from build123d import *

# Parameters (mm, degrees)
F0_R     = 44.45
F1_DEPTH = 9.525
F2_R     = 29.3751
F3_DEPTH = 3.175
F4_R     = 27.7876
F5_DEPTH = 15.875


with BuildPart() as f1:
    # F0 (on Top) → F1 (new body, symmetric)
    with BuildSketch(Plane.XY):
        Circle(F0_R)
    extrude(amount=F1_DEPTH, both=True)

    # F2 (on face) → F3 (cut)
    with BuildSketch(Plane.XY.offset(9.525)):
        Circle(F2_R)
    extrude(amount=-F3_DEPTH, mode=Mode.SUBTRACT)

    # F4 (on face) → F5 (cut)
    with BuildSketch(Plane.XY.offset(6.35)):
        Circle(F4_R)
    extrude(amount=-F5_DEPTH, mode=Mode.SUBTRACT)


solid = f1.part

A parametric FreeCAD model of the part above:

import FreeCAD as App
import Part
import Sketcher
Q = App.Units.Quantity

doc = App.newDocument("Part")
body = doc.addObject("PartDesign::Body", "Body")

# Sketch on XY plane
sketch1 = body.newObject("Sketcher::SketchObject", "Sketch")
sketch1.AttachmentSupport = (doc.getObject("XY_Plane"), [""])
sketch1.MapMode = "FlatFace"
sketch1.addGeometry(Part.Circle(App.Vector(0, 0, 0), App.Vector(0, 0, 1), 44.45), False)
sketch1.addConstraint([
    Sketcher.Constraint("Coincident", 0, 3, -1, 1),
    Sketcher.Constraint("Diameter", 0, Q("3.5 in")),
])
pad1 = body.newObject("PartDesign::Pad", "Pad")
pad1.Profile = sketch1
pad1.Length = Q("0.75 in")
pad1.Midplane = True

# Sketch on XY plane
sketch2 = body.newObject("Sketcher::SketchObject", "Sketch001")
sketch2.AttachmentSupport = (doc.getObject("XY_Plane"), [""])
sketch2.MapMode = "FlatFace"
sketch2.AttachmentOffset = App.Placement(App.Vector(0, 0, 0.375 * 25.4), App.Rotation())
sketch2.addGeometry(Part.Circle(App.Vector(0, 0, 0), App.Vector(0, 0, 1), 29.3751), False)
sketch2.addConstraint([
    Sketcher.Constraint("Coincident", 0, 3, -1, 1),
    Sketcher.Constraint("Diameter", 0, Q("2.313 in")),
])
pocket1 = body.newObject("PartDesign::Pocket", "Pocket")
pocket1.Profile = sketch2
pocket1.Length = Q("0.125 in")

# Sketch on XY plane
sketch3 = body.newObject("Sketcher::SketchObject", "Sketch002")
sketch3.AttachmentSupport = (doc.getObject("XY_Plane"), [""])
sketch3.MapMode = "FlatFace"
sketch3.AttachmentOffset = App.Placement(App.Vector(0, 0, 0.25 * 25.4), App.Rotation())
sketch3.addGeometry(Part.Circle(App.Vector(0, 0, 0), App.Vector(0, 0, 1), 27.7876), False)
sketch3.addConstraint([
    Sketcher.Constraint("Coincident", 0, 3, -1, 1),
    Sketcher.Constraint("Diameter", 0, Q("2.188 in")),
])
pocket2 = body.newObject("PartDesign::Pocket", "Pocket001")
pocket2.Profile = sketch3
pocket2.Length = Q("0.625 in")

doc.recompute()
